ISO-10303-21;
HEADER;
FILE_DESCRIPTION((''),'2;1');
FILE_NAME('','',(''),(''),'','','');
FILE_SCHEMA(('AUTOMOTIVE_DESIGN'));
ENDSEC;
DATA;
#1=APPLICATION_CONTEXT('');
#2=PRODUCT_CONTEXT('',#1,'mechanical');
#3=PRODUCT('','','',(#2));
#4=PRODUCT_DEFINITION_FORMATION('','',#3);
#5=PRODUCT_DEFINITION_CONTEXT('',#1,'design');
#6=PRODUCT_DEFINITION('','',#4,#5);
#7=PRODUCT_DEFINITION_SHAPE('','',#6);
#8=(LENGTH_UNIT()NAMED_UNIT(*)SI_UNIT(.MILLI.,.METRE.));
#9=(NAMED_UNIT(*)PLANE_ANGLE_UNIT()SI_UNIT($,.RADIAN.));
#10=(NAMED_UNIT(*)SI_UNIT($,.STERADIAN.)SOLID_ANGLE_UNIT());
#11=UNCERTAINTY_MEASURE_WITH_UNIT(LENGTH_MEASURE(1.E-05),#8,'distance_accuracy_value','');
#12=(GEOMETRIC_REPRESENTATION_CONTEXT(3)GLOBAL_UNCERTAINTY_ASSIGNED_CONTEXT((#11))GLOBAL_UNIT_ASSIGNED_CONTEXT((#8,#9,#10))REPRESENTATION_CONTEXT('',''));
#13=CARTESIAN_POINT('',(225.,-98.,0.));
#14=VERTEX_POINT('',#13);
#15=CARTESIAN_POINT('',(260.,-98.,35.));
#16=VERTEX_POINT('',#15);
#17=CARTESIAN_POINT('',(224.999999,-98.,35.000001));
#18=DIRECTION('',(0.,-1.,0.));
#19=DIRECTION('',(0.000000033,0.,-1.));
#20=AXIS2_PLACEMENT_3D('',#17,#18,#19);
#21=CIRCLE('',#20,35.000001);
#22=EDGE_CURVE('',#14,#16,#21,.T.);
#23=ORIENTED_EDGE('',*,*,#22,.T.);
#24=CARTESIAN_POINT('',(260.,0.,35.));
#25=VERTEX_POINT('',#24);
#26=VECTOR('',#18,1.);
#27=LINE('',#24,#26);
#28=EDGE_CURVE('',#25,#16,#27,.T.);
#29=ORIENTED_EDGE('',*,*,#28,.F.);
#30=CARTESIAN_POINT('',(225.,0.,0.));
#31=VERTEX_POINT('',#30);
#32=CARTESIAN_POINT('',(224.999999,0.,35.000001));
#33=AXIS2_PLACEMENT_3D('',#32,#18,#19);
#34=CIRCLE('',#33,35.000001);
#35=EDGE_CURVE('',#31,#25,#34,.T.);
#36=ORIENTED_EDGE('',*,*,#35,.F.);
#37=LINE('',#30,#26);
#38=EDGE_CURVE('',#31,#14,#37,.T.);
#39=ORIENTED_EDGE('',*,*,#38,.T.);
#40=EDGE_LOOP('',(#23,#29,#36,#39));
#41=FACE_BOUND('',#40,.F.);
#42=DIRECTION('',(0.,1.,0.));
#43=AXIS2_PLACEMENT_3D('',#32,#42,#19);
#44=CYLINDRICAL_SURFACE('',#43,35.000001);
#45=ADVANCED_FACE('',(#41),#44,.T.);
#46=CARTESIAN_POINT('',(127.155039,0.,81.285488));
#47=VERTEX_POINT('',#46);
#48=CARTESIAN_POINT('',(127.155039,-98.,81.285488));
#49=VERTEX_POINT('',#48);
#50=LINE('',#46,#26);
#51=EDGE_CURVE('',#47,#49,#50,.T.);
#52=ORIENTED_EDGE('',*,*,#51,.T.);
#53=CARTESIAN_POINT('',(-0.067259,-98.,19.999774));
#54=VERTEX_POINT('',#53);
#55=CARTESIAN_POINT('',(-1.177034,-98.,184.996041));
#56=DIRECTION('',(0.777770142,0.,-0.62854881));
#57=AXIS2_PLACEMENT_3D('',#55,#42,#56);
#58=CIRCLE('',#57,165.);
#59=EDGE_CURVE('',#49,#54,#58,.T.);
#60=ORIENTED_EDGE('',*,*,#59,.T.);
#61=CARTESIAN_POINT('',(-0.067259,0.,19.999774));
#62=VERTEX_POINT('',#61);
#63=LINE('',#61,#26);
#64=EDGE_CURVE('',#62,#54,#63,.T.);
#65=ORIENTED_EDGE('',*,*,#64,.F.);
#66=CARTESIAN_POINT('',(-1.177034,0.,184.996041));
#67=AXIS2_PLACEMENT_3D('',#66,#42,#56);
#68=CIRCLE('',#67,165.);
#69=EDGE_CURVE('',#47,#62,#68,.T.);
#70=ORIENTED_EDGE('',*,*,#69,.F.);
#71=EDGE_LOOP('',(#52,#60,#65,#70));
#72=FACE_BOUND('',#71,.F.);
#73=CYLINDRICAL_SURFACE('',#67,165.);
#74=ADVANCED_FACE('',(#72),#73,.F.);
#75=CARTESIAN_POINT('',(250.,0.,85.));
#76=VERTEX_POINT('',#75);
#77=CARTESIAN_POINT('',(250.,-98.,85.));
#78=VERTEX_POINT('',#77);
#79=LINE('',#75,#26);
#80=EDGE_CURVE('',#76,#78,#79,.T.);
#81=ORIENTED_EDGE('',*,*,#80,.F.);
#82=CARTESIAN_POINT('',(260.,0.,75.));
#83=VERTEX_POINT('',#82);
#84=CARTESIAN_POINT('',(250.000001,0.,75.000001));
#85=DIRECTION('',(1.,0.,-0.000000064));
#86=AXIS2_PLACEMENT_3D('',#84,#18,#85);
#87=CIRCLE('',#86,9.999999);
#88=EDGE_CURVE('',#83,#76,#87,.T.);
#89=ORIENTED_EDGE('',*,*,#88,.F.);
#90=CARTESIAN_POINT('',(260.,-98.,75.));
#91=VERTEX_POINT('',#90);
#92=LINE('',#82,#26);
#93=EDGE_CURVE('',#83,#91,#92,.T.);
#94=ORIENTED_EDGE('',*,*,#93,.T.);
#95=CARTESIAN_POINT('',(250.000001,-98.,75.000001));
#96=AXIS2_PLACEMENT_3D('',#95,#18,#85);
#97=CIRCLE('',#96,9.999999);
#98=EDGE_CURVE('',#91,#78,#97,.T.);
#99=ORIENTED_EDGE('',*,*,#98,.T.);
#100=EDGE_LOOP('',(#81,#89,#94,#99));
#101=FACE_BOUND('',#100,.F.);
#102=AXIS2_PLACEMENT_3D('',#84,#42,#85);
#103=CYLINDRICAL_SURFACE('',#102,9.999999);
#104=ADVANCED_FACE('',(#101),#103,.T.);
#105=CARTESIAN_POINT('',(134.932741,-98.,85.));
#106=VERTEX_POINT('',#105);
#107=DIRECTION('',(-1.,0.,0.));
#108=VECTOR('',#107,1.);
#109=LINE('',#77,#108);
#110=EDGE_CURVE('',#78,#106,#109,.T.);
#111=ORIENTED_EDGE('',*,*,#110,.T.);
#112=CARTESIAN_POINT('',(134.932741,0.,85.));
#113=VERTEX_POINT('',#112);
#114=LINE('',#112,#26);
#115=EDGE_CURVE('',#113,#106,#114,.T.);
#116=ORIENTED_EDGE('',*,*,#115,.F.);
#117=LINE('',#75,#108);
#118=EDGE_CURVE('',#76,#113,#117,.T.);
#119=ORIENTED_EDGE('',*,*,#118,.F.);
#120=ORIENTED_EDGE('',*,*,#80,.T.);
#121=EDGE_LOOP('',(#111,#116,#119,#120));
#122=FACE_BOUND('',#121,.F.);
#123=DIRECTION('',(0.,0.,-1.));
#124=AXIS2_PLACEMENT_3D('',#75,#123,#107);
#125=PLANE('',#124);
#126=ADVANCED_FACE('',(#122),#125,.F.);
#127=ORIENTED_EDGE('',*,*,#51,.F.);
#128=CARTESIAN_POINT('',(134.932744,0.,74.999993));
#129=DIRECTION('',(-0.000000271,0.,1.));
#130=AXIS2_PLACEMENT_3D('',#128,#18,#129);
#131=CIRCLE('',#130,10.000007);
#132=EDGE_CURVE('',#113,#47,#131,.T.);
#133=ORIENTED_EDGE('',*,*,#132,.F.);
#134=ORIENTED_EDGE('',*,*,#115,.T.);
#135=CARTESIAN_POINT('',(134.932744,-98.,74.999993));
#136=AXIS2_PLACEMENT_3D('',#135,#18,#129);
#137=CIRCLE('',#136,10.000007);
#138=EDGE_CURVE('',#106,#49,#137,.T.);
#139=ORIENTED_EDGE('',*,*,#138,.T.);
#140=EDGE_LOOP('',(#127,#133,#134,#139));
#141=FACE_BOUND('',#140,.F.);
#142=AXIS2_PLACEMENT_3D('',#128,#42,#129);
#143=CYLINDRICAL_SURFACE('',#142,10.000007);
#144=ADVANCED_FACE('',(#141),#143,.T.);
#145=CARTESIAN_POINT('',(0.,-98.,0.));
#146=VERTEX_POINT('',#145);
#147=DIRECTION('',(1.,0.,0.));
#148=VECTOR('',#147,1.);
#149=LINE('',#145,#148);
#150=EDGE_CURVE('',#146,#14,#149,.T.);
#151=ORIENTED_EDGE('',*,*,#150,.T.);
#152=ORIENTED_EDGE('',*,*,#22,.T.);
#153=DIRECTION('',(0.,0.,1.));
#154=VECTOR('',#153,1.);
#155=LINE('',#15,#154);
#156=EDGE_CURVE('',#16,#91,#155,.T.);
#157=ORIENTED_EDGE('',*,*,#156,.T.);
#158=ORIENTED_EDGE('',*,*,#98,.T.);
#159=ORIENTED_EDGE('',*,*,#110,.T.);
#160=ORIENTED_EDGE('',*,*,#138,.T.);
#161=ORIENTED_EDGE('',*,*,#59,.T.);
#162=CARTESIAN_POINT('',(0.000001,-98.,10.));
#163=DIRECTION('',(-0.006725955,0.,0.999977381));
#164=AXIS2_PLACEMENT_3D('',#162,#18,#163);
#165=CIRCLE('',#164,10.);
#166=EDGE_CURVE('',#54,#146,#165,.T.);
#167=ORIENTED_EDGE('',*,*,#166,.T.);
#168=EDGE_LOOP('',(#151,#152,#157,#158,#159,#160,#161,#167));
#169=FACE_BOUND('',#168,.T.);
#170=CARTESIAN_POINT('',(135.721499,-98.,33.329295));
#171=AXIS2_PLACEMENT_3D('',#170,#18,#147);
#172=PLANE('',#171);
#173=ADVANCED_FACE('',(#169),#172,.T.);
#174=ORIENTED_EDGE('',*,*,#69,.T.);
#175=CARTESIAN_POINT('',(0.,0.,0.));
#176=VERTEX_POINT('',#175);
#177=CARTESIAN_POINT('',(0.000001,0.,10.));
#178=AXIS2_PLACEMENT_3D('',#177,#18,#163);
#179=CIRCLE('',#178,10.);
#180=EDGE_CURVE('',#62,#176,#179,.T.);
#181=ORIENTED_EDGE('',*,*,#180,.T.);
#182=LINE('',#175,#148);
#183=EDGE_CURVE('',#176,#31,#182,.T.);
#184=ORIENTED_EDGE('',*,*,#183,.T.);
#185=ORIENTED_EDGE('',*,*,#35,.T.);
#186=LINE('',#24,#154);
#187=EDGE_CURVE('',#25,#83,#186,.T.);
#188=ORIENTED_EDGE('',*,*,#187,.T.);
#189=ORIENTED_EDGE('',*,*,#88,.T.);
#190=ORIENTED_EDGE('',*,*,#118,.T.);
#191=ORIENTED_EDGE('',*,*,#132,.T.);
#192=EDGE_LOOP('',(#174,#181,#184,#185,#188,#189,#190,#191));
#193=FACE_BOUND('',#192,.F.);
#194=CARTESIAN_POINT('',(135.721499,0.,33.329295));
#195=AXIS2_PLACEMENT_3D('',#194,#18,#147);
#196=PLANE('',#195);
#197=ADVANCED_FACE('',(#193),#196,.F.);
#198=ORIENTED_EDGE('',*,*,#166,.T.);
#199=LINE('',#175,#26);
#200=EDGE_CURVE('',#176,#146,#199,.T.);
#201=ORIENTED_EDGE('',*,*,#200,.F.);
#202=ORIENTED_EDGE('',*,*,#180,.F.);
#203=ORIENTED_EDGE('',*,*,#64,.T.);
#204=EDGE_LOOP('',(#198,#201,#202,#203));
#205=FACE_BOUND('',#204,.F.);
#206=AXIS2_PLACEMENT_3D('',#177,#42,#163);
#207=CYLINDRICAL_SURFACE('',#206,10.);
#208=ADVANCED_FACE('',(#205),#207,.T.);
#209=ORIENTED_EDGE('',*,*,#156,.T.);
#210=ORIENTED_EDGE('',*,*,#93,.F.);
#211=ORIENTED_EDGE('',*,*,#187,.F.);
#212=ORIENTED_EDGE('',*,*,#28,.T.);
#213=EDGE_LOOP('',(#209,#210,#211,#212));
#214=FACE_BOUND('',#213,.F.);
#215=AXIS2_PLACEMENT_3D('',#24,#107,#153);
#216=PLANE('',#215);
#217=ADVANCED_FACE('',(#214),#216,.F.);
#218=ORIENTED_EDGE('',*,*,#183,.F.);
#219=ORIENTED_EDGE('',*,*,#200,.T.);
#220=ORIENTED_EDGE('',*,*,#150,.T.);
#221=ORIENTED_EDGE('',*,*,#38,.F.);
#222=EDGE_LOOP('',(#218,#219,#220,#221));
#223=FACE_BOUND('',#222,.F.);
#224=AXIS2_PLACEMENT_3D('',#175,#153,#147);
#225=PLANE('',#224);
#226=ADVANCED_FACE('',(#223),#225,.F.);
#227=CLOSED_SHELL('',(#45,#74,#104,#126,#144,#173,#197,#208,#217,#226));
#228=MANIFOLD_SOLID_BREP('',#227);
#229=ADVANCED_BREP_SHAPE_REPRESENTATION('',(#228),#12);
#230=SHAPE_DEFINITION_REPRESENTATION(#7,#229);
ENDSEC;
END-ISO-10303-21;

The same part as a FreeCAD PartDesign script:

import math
import FreeCAD as App
import Part
import Sketcher

V = App.Vector

doc = App.newDocument("Part")
body = doc.addObject("PartDesign::Body", "Body")

# Sketch on XZ plane
sketch1 = doc.addObject("Sketcher::SketchObject", "Sketch")
body.addObject(sketch1)
sketch1.AttachmentSupport = (doc.XZ_Plane, [""])
sketch1.MapMode = "FlatFace"
sketch1.addGeometry(Part.LineSegment(V(250, 85, 0), V(135, 85, 0)), False)
sketch1.addGeometry(Part.ArcOfCircle(Part.Circle(V(135, 75, 0), V(0, 0, 1), 10), math.radians(90), math.radians(141)), False)
sketch1.addGeometry(Part.ArcOfCircle(Part.Circle(V(-1, 185, 0), V(0, 0, 1), 165), math.radians(-90), math.radians(-39)), False)
sketch1.addGeometry(Part.ArcOfCircle(Part.Circle(V(0, 10, 0), V(0, 0, 1), 10), math.radians(90), math.radians(270)), False)
sketch1.addGeometry(Part.LineSegment(V(0, 0, 0), V(225, 0, 0)), False)
sketch1.addGeometry(Part.ArcOfCircle(Part.Circle(V(225, 35, 0), V(0, 0, 1), 35), math.radians(-90), math.radians(0)), False)
sketch1.addGeometry(Part.LineSegment(V(260, 35, 0), V(260, 75, 0)), False)
sketch1.addGeometry(Part.ArcOfCircle(Part.Circle(V(250, 75, 0), V(0, 0, 1), 10), math.radians(0), math.radians(90)), False)
sketch1.addConstraint(Sketcher.Constraint("Tangent", 0, 2, 1, 1))
sketch1.addConstraint(Sketcher.Constraint("Tangent", 1, 2, 2, 2))
sketch1.addConstraint(Sketcher.Constraint("Tangent", 2, 1, 3, 1))
sketch1.addConstraint(Sketcher.Constraint("Tangent", 3, 2, 4, 1))
sketch1.addConstraint(Sketcher.Constraint("Tangent", 4, 2, 5, 1))
sketch1.addConstraint(Sketcher.Constraint("Tangent", 5, 2, 6, 1))
sketch1.addConstraint(Sketcher.Constraint("Tangent", 6, 2, 7, 1))
sketch1.addConstraint(Sketcher.Constraint("Tangent", 7, 2, 0, 1))
sketch1.addConstraint(Sketcher.Constraint("Horizontal", 0))
sketch1.addConstraint(Sketcher.Constraint("Horizontal", 4))
sketch1.addConstraint(Sketcher.Constraint("Vertical", 6))
sketch1.addConstraint(Sketcher.Constraint("Coincident", 3, 2, -1, 1))
sketch1.addConstraint(Sketcher.Constraint("Equal", 3, 7))
sketch1.addConstraint(Sketcher.Constraint("Radius", 2, 165.0))
sketch1.addConstraint(Sketcher.Constraint("Radius", 3, 10.0))
sketch1.addConstraint(Sketcher.Constraint("Radius", 5, 35.000001))
sketch1.addConstraint(Sketcher.Constraint("DistanceX", 4, 1, 4, 2, 225.0))
sketch1.addConstraint(Sketcher.Constraint("DistanceY", 6, 1, 6, 2, 40.0))
sketch1.addConstraint(Sketcher.Constraint("DistanceX", 2, 1, 0, 2, 135.0))
sketch1.addConstraint(Sketcher.Constraint("Radius", 1, 10.000007))
pad1 = doc.addObject("PartDesign::Pad", "Pad")
body.addObject(pad1)
pad1.Profile = sketch1
pad1.Length = 98

doc.recompute()
